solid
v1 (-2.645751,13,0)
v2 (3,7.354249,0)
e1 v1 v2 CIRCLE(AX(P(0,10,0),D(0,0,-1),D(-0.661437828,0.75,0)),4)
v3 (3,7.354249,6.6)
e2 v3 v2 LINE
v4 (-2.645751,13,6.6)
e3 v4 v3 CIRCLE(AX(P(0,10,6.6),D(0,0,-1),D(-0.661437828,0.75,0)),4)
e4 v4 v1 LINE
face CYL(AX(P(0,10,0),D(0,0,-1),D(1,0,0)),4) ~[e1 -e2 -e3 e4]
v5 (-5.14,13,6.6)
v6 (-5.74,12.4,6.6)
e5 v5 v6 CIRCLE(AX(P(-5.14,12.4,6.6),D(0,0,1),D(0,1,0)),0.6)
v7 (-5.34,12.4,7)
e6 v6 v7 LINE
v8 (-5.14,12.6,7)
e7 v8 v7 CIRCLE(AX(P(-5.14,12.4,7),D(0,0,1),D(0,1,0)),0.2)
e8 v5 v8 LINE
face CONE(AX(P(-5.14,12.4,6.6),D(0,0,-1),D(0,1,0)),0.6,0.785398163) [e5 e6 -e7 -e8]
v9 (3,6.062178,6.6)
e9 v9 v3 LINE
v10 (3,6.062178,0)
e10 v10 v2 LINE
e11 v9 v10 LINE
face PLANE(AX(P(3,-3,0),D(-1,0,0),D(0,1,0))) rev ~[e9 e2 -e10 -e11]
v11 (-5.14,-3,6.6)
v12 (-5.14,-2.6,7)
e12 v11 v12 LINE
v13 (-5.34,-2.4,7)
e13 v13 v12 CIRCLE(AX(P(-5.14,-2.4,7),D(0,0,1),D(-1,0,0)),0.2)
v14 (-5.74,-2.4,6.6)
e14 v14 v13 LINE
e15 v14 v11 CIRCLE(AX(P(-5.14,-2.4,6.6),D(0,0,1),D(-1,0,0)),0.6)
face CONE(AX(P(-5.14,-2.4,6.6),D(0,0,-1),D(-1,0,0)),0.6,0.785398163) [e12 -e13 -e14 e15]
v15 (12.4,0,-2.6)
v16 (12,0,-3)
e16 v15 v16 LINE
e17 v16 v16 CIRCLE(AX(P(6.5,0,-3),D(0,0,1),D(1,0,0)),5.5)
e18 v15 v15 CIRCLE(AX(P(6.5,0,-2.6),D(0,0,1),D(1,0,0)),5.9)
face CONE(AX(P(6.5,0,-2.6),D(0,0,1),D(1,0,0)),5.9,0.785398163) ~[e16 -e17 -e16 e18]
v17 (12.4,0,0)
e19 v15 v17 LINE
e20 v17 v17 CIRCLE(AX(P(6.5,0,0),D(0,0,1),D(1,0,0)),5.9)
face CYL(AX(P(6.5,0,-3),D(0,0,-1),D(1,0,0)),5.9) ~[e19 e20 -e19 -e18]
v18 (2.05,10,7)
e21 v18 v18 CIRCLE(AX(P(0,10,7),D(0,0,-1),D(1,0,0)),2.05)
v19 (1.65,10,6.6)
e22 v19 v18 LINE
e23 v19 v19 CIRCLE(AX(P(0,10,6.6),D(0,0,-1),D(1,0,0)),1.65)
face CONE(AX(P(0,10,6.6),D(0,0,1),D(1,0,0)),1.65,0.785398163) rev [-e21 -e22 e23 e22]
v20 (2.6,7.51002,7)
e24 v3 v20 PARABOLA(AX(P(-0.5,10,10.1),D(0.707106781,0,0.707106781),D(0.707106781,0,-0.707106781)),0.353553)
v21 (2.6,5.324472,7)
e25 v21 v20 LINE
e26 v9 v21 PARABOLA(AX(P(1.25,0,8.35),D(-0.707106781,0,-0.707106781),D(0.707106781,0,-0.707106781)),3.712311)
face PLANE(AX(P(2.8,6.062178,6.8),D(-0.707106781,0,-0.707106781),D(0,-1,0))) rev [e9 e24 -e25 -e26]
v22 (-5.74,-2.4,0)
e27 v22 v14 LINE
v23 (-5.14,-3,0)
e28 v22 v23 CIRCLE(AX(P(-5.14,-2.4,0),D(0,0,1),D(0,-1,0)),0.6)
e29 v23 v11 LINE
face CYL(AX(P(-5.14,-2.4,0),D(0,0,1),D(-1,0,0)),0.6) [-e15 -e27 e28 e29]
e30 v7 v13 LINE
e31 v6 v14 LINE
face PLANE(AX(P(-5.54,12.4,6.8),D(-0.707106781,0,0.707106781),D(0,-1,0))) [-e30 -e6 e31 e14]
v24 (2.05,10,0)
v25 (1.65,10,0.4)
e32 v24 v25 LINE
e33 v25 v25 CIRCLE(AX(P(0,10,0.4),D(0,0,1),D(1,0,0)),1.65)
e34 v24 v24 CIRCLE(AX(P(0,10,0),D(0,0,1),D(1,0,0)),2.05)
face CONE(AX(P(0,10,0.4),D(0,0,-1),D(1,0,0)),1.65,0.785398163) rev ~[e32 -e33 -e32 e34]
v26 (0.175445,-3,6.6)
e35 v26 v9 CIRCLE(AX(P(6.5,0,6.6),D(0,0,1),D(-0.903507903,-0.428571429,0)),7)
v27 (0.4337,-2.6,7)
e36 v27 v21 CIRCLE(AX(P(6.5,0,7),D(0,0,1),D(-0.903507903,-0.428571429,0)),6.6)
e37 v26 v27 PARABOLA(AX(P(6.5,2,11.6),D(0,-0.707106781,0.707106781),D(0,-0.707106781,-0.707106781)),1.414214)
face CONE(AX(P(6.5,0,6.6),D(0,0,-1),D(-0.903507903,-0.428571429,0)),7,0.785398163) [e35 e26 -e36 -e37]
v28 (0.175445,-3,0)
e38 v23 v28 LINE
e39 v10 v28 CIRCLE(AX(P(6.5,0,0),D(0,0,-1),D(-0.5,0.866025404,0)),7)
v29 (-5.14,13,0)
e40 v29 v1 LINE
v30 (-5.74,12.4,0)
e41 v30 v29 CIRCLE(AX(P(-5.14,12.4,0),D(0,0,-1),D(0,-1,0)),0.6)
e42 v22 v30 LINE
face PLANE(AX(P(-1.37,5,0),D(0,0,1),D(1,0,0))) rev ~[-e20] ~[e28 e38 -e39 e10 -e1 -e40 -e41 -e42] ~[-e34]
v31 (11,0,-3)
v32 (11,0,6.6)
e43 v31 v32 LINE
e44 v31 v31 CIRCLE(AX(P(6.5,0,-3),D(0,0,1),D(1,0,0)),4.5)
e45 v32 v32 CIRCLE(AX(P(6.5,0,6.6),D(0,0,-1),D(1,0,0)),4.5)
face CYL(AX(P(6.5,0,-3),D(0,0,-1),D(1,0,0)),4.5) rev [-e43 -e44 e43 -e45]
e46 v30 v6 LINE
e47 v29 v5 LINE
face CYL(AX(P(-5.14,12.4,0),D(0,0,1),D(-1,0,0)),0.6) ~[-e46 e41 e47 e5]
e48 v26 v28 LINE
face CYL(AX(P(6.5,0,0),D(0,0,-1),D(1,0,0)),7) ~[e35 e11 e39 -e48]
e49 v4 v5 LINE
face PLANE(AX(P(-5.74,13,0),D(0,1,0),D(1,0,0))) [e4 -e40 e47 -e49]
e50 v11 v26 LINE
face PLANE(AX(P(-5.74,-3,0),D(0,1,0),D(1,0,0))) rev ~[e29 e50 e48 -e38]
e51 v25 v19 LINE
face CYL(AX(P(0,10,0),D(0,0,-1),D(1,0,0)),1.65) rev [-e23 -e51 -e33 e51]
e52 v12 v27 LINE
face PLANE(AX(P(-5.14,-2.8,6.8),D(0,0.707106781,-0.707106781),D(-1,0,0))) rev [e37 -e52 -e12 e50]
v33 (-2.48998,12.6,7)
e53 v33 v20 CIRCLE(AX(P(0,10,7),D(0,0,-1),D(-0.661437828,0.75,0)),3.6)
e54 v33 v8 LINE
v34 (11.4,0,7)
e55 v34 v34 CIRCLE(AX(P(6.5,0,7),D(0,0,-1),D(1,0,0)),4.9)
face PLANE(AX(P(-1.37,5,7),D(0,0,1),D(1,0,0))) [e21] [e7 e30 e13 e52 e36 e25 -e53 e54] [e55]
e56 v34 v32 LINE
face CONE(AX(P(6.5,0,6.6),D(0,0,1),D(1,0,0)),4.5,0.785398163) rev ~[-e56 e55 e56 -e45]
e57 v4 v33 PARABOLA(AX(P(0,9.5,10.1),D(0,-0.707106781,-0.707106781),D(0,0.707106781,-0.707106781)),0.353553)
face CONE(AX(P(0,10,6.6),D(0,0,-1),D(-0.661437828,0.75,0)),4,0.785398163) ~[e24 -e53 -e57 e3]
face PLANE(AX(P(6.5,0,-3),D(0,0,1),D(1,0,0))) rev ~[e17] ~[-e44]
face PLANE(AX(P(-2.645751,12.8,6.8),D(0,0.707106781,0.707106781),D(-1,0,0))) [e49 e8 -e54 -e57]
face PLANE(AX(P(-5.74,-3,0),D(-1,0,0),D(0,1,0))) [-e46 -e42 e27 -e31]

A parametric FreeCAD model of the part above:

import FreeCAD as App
import Part
import Sketcher
Q = App.Units.Quantity


def edges_at(feature, points):
    """Names of the edges that pass closest to the given points."""
    edges = feature.Shape.Edges
    near = lambda p: min(range(len(edges)), key=lambda i: edges[i].distToShape(Part.Vertex(*p))[0])
    return sorted({f"Edge{near(p) + 1}" for p in points})

doc = App.newDocument("Part")
body = doc.addObject("PartDesign::Body", "Body")

sketch1 = body.newObject("Sketcher::SketchObject", "Sketch")
sketch1.AttachmentSupport = (doc.getObject("XY_Plane"), [""])
sketch1.MapMode = "FlatFace"
sketch1.AttachmentOffset = App.Placement(App.Vector(0, 0, -3), App.Rotation())
sketch1.addGeometry(Part.Circle(App.Vector(6.5, 0, 0), App.Vector(0, 0, 1), 4.5), False)
sketch1.addConstraint(Sketcher.Constraint("PointOnObject", 0, 3, -1))
sketch1.addConstraint(Sketcher.Constraint("Diameter", 0, Q("9 mm")))
sketch1.addConstraint(Sketcher.Constraint("DistanceX", -1, 1, 0, 3, Q("6.5 mm")))
pad1 = body.newObject("PartDesign::Pad", "Pad")
pad1.Profile = sketch1
pad1.Length = 12
body2 = doc.addObject("PartDesign::Body", "Body001")

sketch2 = body2.newObject("Sketcher::SketchObject", "Sketch001")
sketch2.AttachmentSupport = (doc.getObject("XY_Plane001"), [""])
sketch2.MapMode = "FlatFace"
sketch2.addGeometry(Part.Circle(App.Vector(0, 10, 0), App.Vector(0, 0, 1), 1.6), False)
sketch2.addConstraint(Sketcher.Constraint("PointOnObject", 0, 3, -2))
sketch2.addConstraint(Sketcher.Constraint("Diameter", 0, Q("3.3 mm")))
sketch2.addConstraint(Sketcher.Constraint("DistanceY", -1, 1, 0, 3, Q("10 mm")))
pad2 = body2.newObject("PartDesign::Pad", "Pad001")
pad2.Profile = sketch2
pad2.Length = 8
body3 = doc.addObject("PartDesign::Body", "Body002")

sketch3 = body3.newObject("Sketcher::SketchObject", "Sketch002")
sketch3.AttachmentSupport = (doc.getObject("XY_Plane002"), [""])
sketch3.MapMode = "FlatFace"
sketch3.addGeometry(Part.LineSegment(App.Vector(-6, 13, 0), App.Vector(-6, -3, 0)), False)
sketch3.addGeometry(Part.LineSegment(App.Vector(-6, -3, 0), App.Vector(3, -3, 0)), False)
sketch3.addGeometry(Part.LineSegment(App.Vector(3, -3, 0), App.Vector(3, 13, 0)), False)
sketch3.addGeometry(Part.LineSegment(App.Vector(3, 13, 0), App.Vector(-6, 13, 0)), False)
sketch3.addConstraint(Sketcher.Constraint("Coincident", 0, 2, 1, 1))
sketch3.addConstraint(Sketcher.Constraint("Coincident", 1, 2, 2, 1))
sketch3.addConstraint(Sketcher.Constraint("Coincident", 2, 2, 3, 1))
sketch3.addConstraint(Sketcher.Constraint("Coincident", 3, 2, 0, 1))
sketch3.addConstraint(Sketcher.Constraint("Vertical", 0))
sketch3.addConstraint(Sketcher.Constraint("Horizontal", 1))
sketch3.addConstraint(Sketcher.Constraint("Vertical", 2))
sketch3.addConstraint(Sketcher.Constraint("Horizontal", 3))
sketch3.addConstraint(Sketcher.Constraint("DistanceY", 0, 2, 0, 1, Q("16 mm")))
sketch3.addConstraint(Sketcher.Constraint("DistanceY", 0, 2, -1, 1, Q("3 mm")))
sketch3.addConstraint(Sketcher.Constraint("DistanceX", -1, 1, 1, 2, Q("3 mm")))
sketch3.addConstraint(Sketcher.Constraint("DistanceX", 1, 1, 1, 2, Q("8.74 mm")))
pad3 = body3.newObject("PartDesign::Pad", "Pad002")
pad3.Profile = sketch3
pad3.Length = 7
doc.recompute()

fillet = body3.newObject("PartDesign::Fillet", "Fillet")
fillet.Base = (pad3, edges_at(pad3, [(-5.74, -3, 3.5), (-5.74, 13, 3.5)]))
fillet.Radius = 0.6
doc.recompute()

fillet2 = body3.newObject("PartDesign::Fillet", "Fillet001")
fillet2.Base = (fillet, edges_at(fillet, [(3, 13, 3.5)]))
fillet2.Radius = 3
body4 = doc.addObject("PartDesign::Body", "Body003")

sketch4 = body4.newObject("Sketcher::SketchObject", "Sketch003")
sketch4.AttachmentSupport = (doc.getObject("XY_Plane003"), [""])
sketch4.MapMode = "FlatFace"
sketch4.addGeometry(Part.Circle(App.Vector(0, 10, 0), App.Vector(0, 0, 1), 4), False)
sketch4.addConstraint(Sketcher.Constraint("PointOnObject", 0, 3, -2))
sketch4.addConstraint(Sketcher.Constraint("Diameter", 0, Q("8 mm")))
sketch4.addConstraint(Sketcher.Constraint("DistanceY", -1, 1, 0, 3, Q("10 mm")))
pad4 = body4.newObject("PartDesign::Pad", "Pad003")
pad4.Profile = sketch4
pad4.Length = 7
doc.recompute()

boolean = body4.newObject("PartDesign::Boolean", "Boolean")
boolean.Type = "Fuse"
boolean.addObjects([body3])
doc.recompute()

boolean2 = body4.newObject("PartDesign::Boolean", "Boolean001")
boolean2.Type = "Cut"
boolean2.addObjects([body2])
body5 = doc.addObject("PartDesign::Body", "Body004")

sketch5 = body5.newObject("Sketcher::SketchObject", "Sketch004")
sketch5.AttachmentSupport = (doc.getObject("XY_Plane004"), [""])
sketch5.MapMode = "FlatFace"
sketch5.AttachmentOffset = App.Placement(App.Vector(0, 0, -3), App.Rotation())
sketch5.addGeometry(Part.Circle(App.Vector(6, 0, 0), App.Vector(0, 0, 1), 6), False)
sketch5.addConstraint(Sketcher.Constraint("PointOnObject", 0, 3, -1))
sketch5.addConstraint(Sketcher.Constraint("Diameter", 0, Q("11.8 mm")))
sketch5.addConstraint(Sketcher.Constraint("DistanceX", -1, 1, 0, 3, Q("6.5 mm")))
pad5 = body5.newObject("PartDesign::Pad", "Pad004")
pad5.Profile = sketch5
pad5.Length = 10
body6 = doc.addObject("PartDesign::Body", "Body005")

sketch6 = body6.newObject("Sketcher::SketchObject", "Sketch005")
sketch6.AttachmentSupport = (doc.getObject("XY_Plane005"), [""])
sketch6.MapMode = "FlatFace"
sketch6.addGeometry(Part.Circle(App.Vector(6, 0, 0), App.Vector(0, 0, 1), 7), False)
sketch6.addConstraint(Sketcher.Constraint("PointOnObject", 0, 3, -1))
sketch6.addConstraint(Sketcher.Constraint("Diameter", 0, Q("14 mm")))
sketch6.addConstraint(Sketcher.Constraint("DistanceX", -1, 1, 0, 3, Q("6.5 mm")))
pad6 = body6.newObject("PartDesign::Pad", "Pad005")
pad6.Profile = sketch6
pad6.Length = 7
doc.recompute()

boolean3 = body6.newObject("PartDesign::Boolean", "Boolean002")
boolean3.Type = "Fuse"
boolean3.addObjects([body5])
doc.recompute()

boolean4 = body6.newObject("PartDesign::Boolean", "Boolean003")
boolean4.Type = "Fuse"
boolean4.addObjects([body4])
doc.recompute()

boolean5 = body6.newObject("PartDesign::Boolean", "Boolean004")
boolean5.Type = "Cut"
boolean5.addObjects([body])
doc.recompute()

chamfer = body6.newObject("PartDesign::Chamfer", "Chamfer")
chamfer.Base = (boolean5, edges_at(boolean5, [
    (-2.482, -3, 7),
    (-5.564, -2.824, 7),
    (-5.74, 5, 7),
    (-5.564, 12.824, 7),
    (-3.893, 13, 7),
    (-1.65, 10, 0),
    (3, 6.708, 7),
    (0.6, 0, -3),
    (2, 0, 7),
    (2, 0, 7),
    (2, 0, 7),
    (-1.65, 10, 7),
    (13.183, -2.083, 7),
    (13.183, -2.083, 7),
    (2.828, 12.828, 7),
    (2.828, 12.828, 7),
]))
chamfer.Size = 0.4

doc.recompute()
